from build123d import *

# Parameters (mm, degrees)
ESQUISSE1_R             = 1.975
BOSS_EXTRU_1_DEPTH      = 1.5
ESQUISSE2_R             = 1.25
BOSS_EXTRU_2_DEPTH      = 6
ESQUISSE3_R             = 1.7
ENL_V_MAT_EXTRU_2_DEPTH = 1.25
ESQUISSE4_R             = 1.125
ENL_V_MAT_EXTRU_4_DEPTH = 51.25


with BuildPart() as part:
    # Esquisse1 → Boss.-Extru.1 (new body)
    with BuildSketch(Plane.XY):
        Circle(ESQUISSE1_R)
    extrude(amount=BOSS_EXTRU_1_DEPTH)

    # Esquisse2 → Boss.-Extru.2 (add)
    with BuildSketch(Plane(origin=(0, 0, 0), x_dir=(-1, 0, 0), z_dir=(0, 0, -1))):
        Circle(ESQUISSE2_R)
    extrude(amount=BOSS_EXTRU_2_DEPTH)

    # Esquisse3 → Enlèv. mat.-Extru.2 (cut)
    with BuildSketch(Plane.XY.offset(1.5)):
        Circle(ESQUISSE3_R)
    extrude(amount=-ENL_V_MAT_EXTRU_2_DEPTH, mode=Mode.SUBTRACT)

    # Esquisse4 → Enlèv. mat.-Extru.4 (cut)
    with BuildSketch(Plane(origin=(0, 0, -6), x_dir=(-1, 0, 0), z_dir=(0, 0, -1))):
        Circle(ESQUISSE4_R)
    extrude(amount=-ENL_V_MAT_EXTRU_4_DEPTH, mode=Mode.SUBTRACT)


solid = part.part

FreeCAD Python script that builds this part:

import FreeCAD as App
import Part
import Sketcher

doc = App.newDocument("Part")
body = doc.addObject("PartDesign::Body", "Body")

# Sketch on XY plane
sketch1 = body.newObject("Sketcher::SketchObject", "Sketch")
sketch1.AttachmentSupport = (doc.getObject("XY_Plane"), [""])
sketch1.MapMode = "FlatFace"
sketch1.addGeometry(Part.Circle(App.Vector(0, 0, 0), App.Vector(0, 0, 1), 2), False)
sketch1.addConstraint([
    Sketcher.Constraint("Coincident", 0, 3, -1, 1),
    Sketcher.Constraint("Diameter", 0, 3.95),
])
pad1 = body.newObject("PartDesign::Pad", "Pad")
pad1.Profile = sketch1
pad1.Length = 1.5

# Sketch on XY plane
sketch2 = body.newObject("Sketcher::SketchObject", "Sketch001")
sketch2.AttachmentSupport = (doc.getObject("XY_Plane"), [""])
sketch2.MapMode = "FlatFace"
sketch2.addGeometry(Part.Circle(App.Vector(0, 0, 0), App.Vector(0, 0, 1), 1.2), False)
sketch2.addConstraint([
    Sketcher.Constraint("Coincident", 0, 3, -1, 1),
    Sketcher.Constraint("Diameter", 0, 2.5),
])
pad2 = body.newObject("PartDesign::Pad", "Pad001")
pad2.Profile = sketch2
pad2.Length = 6
pad2.Reversed = True

# Sketch on XY plane
sketch3 = body.newObject("Sketcher::SketchObject", "Sketch002")
sketch3.AttachmentSupport = (doc.getObject("XY_Plane"), [""])
sketch3.MapMode = "FlatFace"
sketch3.AttachmentOffset = App.Placement(App.Vector(0, 0, 1.5), App.Rotation())
sketch3.addGeometry(Part.Circle(App.Vector(0, 0, 0), App.Vector(0, 0, 1), 1.7), False)
sketch3.addConstraint([
    Sketcher.Constraint("Coincident", 0, 3, -1, 1),
    Sketcher.Constraint("Diameter", 0, 3.4),
])
pocket1 = body.newObject("PartDesign::Pocket", "Pocket")
pocket1.Profile = sketch3
pocket1.Length = 1.25

# Sketch on XY plane
sketch4 = body.newObject("Sketcher::SketchObject", "Sketch003")
sketch4.AttachmentSupport = (doc.getObject("XY_Plane"), [""])
sketch4.MapMode = "FlatFace"
sketch4.AttachmentOffset = App.Placement(App.Vector(0, 0, -6), App.Rotation())
sketch4.addGeometry(Part.Circle(App.Vector(0, 0, 0), App.Vector(0, 0, 1), 1.1), False)
sketch4.addConstraint([
    Sketcher.Constraint("Coincident", 0, 3, -1, 1),
    Sketcher.Constraint("Diameter", 0, 2.25),
])
pocket2 = body.newObject("PartDesign::Pocket", "Pocket001")
pocket2.Profile = sketch4
pocket2.Length = 51.25
pocket2.Reversed = True

doc.recompute()
